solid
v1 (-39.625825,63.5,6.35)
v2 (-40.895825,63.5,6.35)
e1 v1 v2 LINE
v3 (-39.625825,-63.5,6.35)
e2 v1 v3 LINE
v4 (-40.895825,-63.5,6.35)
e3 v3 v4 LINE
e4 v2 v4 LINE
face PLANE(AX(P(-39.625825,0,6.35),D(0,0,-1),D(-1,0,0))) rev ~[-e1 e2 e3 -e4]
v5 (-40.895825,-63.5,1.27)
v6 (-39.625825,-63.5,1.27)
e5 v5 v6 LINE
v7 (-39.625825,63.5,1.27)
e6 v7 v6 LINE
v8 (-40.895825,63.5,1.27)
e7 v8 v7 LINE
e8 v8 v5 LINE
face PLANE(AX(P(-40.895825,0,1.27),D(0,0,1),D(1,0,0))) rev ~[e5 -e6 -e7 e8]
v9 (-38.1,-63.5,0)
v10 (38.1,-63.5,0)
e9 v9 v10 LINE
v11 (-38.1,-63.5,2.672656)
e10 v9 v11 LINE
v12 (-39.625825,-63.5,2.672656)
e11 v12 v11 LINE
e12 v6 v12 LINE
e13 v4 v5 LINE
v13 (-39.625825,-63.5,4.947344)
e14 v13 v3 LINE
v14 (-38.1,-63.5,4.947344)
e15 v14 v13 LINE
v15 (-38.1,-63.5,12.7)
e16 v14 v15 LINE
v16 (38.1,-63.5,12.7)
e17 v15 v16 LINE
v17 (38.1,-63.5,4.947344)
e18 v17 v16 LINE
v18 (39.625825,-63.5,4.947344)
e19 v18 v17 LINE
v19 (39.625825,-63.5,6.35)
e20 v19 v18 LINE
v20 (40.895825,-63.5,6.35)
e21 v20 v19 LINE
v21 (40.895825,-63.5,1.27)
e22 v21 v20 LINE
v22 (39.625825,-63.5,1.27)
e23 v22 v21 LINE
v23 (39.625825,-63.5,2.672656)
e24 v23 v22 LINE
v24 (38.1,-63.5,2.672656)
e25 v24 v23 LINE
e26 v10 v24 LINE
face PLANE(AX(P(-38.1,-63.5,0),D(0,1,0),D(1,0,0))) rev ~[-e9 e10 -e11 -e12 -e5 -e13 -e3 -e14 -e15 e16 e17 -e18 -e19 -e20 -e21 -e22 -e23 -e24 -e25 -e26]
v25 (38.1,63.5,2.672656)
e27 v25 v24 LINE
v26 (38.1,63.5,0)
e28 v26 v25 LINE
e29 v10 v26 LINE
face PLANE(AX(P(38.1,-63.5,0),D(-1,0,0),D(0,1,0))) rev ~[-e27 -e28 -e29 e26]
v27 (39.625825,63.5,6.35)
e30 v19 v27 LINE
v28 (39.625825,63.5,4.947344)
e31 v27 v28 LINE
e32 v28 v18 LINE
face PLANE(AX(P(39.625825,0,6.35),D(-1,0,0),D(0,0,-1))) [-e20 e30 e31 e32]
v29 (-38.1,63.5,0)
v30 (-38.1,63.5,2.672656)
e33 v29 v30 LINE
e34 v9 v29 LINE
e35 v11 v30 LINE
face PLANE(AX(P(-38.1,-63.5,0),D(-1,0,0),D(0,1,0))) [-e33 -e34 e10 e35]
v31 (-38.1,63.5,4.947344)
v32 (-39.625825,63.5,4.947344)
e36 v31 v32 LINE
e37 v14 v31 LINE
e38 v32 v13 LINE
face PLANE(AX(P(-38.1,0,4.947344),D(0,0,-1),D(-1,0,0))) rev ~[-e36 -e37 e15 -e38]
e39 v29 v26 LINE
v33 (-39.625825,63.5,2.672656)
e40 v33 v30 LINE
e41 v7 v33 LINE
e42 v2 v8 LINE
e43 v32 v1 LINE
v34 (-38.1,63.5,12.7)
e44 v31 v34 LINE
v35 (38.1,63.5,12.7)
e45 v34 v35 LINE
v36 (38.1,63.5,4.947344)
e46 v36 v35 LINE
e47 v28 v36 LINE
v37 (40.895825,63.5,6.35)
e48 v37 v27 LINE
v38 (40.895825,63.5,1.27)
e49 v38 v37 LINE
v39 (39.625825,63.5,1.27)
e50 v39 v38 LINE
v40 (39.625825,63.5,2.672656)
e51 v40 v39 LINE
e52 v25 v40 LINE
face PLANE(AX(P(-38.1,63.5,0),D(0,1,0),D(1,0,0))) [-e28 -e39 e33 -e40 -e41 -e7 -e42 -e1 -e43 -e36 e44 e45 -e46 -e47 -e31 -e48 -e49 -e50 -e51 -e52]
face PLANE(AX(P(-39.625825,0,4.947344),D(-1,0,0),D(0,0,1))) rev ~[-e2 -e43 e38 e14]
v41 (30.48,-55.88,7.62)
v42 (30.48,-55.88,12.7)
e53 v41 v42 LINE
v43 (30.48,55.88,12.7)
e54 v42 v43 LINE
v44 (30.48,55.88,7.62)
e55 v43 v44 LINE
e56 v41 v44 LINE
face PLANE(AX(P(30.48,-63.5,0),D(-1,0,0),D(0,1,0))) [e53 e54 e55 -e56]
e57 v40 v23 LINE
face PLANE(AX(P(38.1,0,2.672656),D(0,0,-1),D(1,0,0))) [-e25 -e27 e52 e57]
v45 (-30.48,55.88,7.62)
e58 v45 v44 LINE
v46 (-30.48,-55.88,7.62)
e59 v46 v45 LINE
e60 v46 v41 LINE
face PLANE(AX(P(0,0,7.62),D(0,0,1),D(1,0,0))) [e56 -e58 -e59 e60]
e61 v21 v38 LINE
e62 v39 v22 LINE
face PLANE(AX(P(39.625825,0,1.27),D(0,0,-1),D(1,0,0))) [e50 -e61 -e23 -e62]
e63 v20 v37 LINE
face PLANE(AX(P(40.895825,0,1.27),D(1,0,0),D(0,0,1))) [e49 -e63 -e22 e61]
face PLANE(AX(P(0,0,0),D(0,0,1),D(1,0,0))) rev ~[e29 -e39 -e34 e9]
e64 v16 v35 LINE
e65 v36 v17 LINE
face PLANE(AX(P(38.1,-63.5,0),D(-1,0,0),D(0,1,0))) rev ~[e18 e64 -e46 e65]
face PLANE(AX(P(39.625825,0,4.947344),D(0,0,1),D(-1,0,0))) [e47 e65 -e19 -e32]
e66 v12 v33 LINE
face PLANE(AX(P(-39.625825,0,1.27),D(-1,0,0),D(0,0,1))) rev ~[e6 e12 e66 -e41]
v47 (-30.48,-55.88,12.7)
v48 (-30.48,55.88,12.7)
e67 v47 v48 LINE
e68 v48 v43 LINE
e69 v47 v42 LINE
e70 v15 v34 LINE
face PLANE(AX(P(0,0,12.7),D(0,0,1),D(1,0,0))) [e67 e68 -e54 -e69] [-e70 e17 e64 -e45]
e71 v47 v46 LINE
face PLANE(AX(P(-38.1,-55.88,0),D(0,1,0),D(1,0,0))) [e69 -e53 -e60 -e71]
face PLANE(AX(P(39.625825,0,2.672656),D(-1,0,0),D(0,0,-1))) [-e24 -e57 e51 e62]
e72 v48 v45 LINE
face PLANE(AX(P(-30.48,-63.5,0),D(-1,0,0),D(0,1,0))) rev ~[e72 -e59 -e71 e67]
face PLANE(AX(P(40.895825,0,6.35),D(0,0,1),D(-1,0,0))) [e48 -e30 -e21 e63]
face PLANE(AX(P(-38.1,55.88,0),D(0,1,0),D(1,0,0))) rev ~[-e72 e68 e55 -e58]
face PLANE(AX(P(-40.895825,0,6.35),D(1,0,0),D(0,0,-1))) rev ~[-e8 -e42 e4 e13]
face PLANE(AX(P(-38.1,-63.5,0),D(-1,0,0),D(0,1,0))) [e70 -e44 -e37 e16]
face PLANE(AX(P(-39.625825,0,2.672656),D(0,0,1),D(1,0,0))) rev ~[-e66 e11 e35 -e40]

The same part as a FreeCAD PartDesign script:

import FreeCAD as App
import Part
import Sketcher
Q = App.Units.Quantity


def faces_at(feature, points):
    """Names of the faces that lie closest to the given points."""
    faces = feature.Shape.Faces
    near = lambda p: min(range(len(faces)), key=lambda i: faces[i].distToShape(Part.Vertex(*p))[0])
    return sorted({f"Face{near(p) + 1}" for p in points})


def add_polygon(sketch, points):
    """Adds a closed chain of lines whose ends are joined by coincident constraints."""
    first, n = sketch.GeometryCount, len(points)
    for a, b in zip(points, points[1:] + points[:1]):
        sketch.addGeometry(Part.LineSegment(App.Vector(*a, 0), App.Vector(*b, 0)), False)
    for i in range(n):
        sketch.addConstraint(Sketcher.Constraint("Coincident", first + i, 2, first + (i + 1) % n, 1))

doc = App.newDocument("Part")
params = doc.addObject("Spreadsheet::Sheet", "Params")
for row, (alias, value) in enumerate([
    ("sketch1_width", "3 in"),
    ("sketch1_height", "5 in"),
    ("pad1_length", "0.5 in"),
    ("thickness_wall", "0.3 in"),
    ("sketch2_height", "0.2 in"),
    ("sketch2_width", "0.05 in"),
    ("pad2_length", "5 in"),
], start=1):
    params.set(f"A{row}", alias)
    params.set(f"B{row}", "=" + value)
    params.setAlias(f"B{row}", alias)

body = doc.addObject("PartDesign::Body", "Body")

sketch1 = body.newObject("Sketcher::SketchObject", "Sketch")
sketch1.AttachmentSupport = (doc.getObject("XY_Plane"), [""])
sketch1.MapMode = "FlatFace"
add_polygon(sketch1, [(-38.1, 63.5), (-38.1, -63.5), (38.1, -63.5), (38.1, 63.5)])
sketch1.addConstraint(Sketcher.Constraint("Vertical", 0))
sketch1.addConstraint(Sketcher.Constraint("Horizontal", 1))
sketch1.addConstraint(Sketcher.Constraint("Vertical", 2))
sketch1.addConstraint(Sketcher.Constraint("Horizontal", 3))
sketch1.addConstraint(Sketcher.Constraint("Symmetric", 0, 2, 2, 2, -1, 1))
sketch1.addConstraint(Sketcher.Constraint("DistanceX", 1, 1, 1, 2, Q("3 in")))
sketch1.addConstraint(Sketcher.Constraint("DistanceY", 0, 2, 0, 1, Q("5 in")))
sketch1.setExpression("Constraints[9]", "Params.sketch1_width")
sketch1.setExpression("Constraints[10]", "Params.sketch1_height")
pad1 = body.newObject("PartDesign::Pad", "Pad")
pad1.Profile = sketch1
pad1.setExpression("Length", "Params.pad1_length")
doc.recompute()

thickness = body.newObject("PartDesign::Thickness", "Thickness")
thickness.Base = (pad1, faces_at(pad1, [(0, 0, 12.7)]))
thickness.setExpression("Value", "Params.thickness_wall")
thickness.Reversed = True
thickness.Join = "Arc"

sketch2 = body.newObject("Sketcher::SketchObject", "Sketch001")
sketch2.AttachmentSupport = (doc.getObject("XZ_Plane"), [""])
sketch2.MapMode = "FlatFace"
add_polygon(sketch2, [(-38.1, 4.947344), (-39.625825, 4.947344), (-39.625825, 6.35), (-40.895825, 6.35), (-40.895825, 1.27), (-39.625825, 1.27), (-39.625825, 2.672656), (-38.1, 2.672656)])
add_polygon(sketch2, [(39.625825, 6.35), (39.625825, 4.947344), (38.1, 4.947344), (38.1, 2.672656), (39.625825, 2.672656), (39.625825, 1.27), (40.895825, 1.27), (40.895825, 6.35)])
sketch2.addConstraint(Sketcher.Constraint("Horizontal", 0))
sketch2.addConstraint(Sketcher.Constraint("Vertical", 1))
sketch2.addConstraint(Sketcher.Constraint("Horizontal", 2))
sketch2.addConstraint(Sketcher.Constraint("Vertical", 3))
sketch2.addConstraint(Sketcher.Constraint("Horizontal", 4))
sketch2.addConstraint(Sketcher.Constraint("Vertical", 5))
sketch2.addConstraint(Sketcher.Constraint("Horizontal", 6))
sketch2.addConstraint(Sketcher.Constraint("Vertical", 7))
sketch2.addConstraint(Sketcher.Constraint("Vertical", 8))
sketch2.addConstraint(Sketcher.Constraint("Horizontal", 9))
sketch2.addConstraint(Sketcher.Constraint("Vertical", 10))
sketch2.addConstraint(Sketcher.Constraint("Horizontal", 11))
sketch2.addConstraint(Sketcher.Constraint("Vertical", 12))
sketch2.addConstraint(Sketcher.Constraint("Horizontal", 13))
sketch2.addConstraint(Sketcher.Constraint("Vertical", 14))
sketch2.addConstraint(Sketcher.Constraint("Horizontal", 15))
sketch2.addConstraint(Sketcher.Constraint("Symmetric", 0, 2, 8, 2, -2))
sketch2.addConstraint(Sketcher.Constraint("Symmetric", 6, 2, 10, 2, -2))
sketch2.addConstraint(Sketcher.Constraint("Symmetric", 4, 2, 12, 2, -2))
sketch2.addConstraint(Sketcher.Constraint("Symmetric", 2, 2, 14, 2, -2))
sketch2.addConstraint(Sketcher.Constraint("Vertical", 1, 2, 4, 2))
sketch2.addConstraint(Sketcher.Constraint("Equal", 1, 5))
sketch2.addConstraint(Sketcher.Constraint("DistanceY", 3, 2, 3, 1, Q("0.2 in")))
sketch2.addConstraint(Sketcher.Constraint("DistanceX", 7, 2, 9, 2, Q("3 in")))
sketch2.addConstraint(Sketcher.Constraint("DistanceX", 2, 2, 2, 1, Q("0.05 in")))
sketch2.addConstraint(Sketcher.Constraint("DistanceY", -1, 1, 1, 2, Q("0.25 in")))
sketch2.addConstraint(Sketcher.Constraint("DistanceY", 7, 1, 7, 2, Q("2.274688 mm")))
sketch2.addConstraint(Sketcher.Constraint("DistanceX", 0, 2, 0, 1, Q("1.525825 mm")))
sketch2.setExpression("Constraints[38]", "Params.sketch2_height")
sketch2.setExpression("Constraints[40]", "Params.sketch2_width")
pad2 = body.newObject("PartDesign::Pad", "Pad001")
pad2.Profile = sketch2
pad2.setExpression("Length", "Params.pad2_length")
pad2.Midplane = True

doc.recompute()
